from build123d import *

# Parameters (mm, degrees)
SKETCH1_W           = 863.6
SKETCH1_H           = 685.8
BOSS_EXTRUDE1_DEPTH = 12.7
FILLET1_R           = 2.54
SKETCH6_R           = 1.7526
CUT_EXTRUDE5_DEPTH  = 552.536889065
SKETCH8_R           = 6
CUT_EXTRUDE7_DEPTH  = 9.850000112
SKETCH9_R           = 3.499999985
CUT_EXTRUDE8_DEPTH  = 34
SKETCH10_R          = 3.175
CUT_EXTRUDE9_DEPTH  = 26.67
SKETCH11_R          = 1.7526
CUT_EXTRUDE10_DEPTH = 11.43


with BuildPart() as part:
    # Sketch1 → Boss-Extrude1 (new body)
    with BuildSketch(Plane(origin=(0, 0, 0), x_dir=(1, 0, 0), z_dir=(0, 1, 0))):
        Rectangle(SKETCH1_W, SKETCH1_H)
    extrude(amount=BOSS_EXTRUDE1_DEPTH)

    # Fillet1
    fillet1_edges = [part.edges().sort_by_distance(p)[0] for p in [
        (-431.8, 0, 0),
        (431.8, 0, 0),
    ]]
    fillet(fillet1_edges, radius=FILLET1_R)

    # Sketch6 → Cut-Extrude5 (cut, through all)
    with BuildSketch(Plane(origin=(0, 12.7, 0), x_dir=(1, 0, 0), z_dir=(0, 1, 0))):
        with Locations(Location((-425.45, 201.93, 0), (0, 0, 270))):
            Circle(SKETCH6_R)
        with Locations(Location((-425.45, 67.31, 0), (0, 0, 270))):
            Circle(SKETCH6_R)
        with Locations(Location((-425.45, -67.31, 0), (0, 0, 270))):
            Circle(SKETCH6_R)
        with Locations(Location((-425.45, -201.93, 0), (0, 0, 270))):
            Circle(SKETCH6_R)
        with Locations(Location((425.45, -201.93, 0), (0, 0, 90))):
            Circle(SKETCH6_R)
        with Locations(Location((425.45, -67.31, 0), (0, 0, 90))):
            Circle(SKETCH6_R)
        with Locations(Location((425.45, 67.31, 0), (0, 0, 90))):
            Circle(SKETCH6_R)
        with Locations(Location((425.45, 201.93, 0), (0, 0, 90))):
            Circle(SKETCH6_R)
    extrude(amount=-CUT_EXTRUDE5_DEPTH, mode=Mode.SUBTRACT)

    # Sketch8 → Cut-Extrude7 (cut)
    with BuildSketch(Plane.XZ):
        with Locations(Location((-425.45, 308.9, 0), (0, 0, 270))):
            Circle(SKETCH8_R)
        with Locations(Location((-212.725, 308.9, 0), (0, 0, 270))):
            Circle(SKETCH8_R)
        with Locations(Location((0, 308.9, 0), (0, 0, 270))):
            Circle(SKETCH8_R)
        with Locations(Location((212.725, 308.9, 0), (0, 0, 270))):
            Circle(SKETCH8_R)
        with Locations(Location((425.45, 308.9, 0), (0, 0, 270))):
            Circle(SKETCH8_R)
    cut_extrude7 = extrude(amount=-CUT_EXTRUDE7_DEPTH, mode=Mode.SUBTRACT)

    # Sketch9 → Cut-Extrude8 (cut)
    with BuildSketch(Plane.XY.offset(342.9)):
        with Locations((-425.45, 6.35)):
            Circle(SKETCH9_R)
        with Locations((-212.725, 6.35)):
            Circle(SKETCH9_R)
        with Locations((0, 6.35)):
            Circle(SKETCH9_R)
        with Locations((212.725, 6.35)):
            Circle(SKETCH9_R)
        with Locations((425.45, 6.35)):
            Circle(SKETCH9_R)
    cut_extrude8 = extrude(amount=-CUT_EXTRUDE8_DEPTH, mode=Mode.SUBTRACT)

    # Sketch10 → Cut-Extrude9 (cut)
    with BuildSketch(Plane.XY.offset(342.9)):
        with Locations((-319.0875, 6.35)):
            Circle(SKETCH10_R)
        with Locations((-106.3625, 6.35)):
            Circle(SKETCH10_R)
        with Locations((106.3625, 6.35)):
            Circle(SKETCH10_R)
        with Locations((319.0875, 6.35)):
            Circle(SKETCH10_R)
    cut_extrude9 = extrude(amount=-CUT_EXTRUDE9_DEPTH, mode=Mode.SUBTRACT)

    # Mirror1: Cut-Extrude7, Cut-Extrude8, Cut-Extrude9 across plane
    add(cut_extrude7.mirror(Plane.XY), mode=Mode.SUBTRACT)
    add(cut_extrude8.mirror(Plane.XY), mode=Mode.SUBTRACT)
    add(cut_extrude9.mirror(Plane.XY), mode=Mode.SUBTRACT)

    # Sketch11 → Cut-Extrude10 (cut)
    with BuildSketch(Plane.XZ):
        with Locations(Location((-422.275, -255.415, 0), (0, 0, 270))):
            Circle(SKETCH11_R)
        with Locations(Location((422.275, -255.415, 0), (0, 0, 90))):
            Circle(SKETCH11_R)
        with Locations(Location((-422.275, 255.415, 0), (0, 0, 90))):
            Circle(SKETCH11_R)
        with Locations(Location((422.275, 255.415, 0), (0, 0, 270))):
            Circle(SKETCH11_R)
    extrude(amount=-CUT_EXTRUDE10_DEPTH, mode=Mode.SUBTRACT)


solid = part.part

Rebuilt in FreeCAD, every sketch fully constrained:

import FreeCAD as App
import Part
import Sketcher
Q = App.Units.Quantity


def edges_at(feature, points):
    """Names of the edges that pass closest to the given points."""
    edges = feature.Shape.Edges
    near = lambda p: min(range(len(edges)), key=lambda i: edges[i].distToShape(Part.Vertex(*p))[0])
    return sorted({f"Edge{near(p) + 1}" for p in points})

doc = App.newDocument("Part")
body = doc.addObject("PartDesign::Body", "Body")

sketch1 = body.newObject("Sketcher::SketchObject", "Sketch")
sketch1.AttachmentSupport = (doc.getObject("XZ_Plane"), [""])
sketch1.MapMode = "FlatFace"
sketch1.addGeometry(Part.LineSegment(App.Vector(-431.8, -342.9, 0), App.Vector(-431.8, 342.9, 0)), False)
sketch1.addGeometry(Part.LineSegment(App.Vector(-431.8, 342.9, 0), App.Vector(431.8, 342.9, 0)), False)
sketch1.addGeometry(Part.LineSegment(App.Vector(431.8, 342.9, 0), App.Vector(431.8, -342.9, 0)), False)
sketch1.addGeometry(Part.LineSegment(App.Vector(431.8, -342.9, 0), App.Vector(-431.8, -342.9, 0)), False)
sketch1.addConstraint(Sketcher.Constraint("Coincident", 0, 2, 1, 1))
sketch1.addConstraint(Sketcher.Constraint("Coincident", 1, 2, 2, 1))
sketch1.addConstraint(Sketcher.Constraint("Coincident", 2, 2, 3, 1))
sketch1.addConstraint(Sketcher.Constraint("Coincident", 3, 2, 0, 1))
sketch1.addConstraint(Sketcher.Constraint("Vertical", 0))
sketch1.addConstraint(Sketcher.Constraint("Horizontal", 1))
sketch1.addConstraint(Sketcher.Constraint("Vertical", 2))
sketch1.addConstraint(Sketcher.Constraint("Horizontal", 3))
sketch1.addConstraint(Sketcher.Constraint("Symmetric", 0, 2, 2, 2, -1, 1))
sketch1.addConstraint(Sketcher.Constraint("DistanceX", 1, 1, 1, 2, Q("34 in")))
sketch1.addConstraint(Sketcher.Constraint("DistanceY", 0, 1, 0, 2, Q("27 in")))
pad1 = body.newObject("PartDesign::Pad", "Pad")
pad1.Profile = sketch1
pad1.Length = Q("0.5 in")
pad1.Reversed = True
doc.recompute()

fillet = body.newObject("PartDesign::Fillet", "Fillet")
fillet.Base = (pad1, edges_at(pad1, [(-431.8, 0, 0), (431.8, 0, 0)]))
fillet.Radius = Q("0.1 in")

sketch2 = body.newObject("Sketcher::SketchObject", "Sketch001")
sketch2.AttachmentSupport = (doc.getObject("XZ_Plane"), [""])
sketch2.MapMode = "FlatFace"
sketch2.AttachmentOffset = App.Placement(App.Vector(0, 0, -0.5 * 25.4), App.Rotation())
sketch2.addGeometry(Part.Circle(App.Vector(-425.45, -201.93, 0), App.Vector(0, 0, 1), 1.7526), False)
sketch2.addGeometry(Part.Circle(App.Vector(-425.45, -67.31, 0), App.Vector(0, 0, 1), 1.7526), False)
sketch2.addGeometry(Part.Circle(App.Vector(-425.45, 67.31, 0), App.Vector(0, 0, 1), 1.7526), False)
sketch2.addGeometry(Part.Circle(App.Vector(-425.45, 201.93, 0), App.Vector(0, 0, 1), 1.7526), False)
sketch2.addGeometry(Part.Circle(App.Vector(425.45, 201.93, 0), App.Vector(0, 0, 1), 1.7526), False)
sketch2.addGeometry(Part.Circle(App.Vector(425.45, 67.31, 0), App.Vector(0, 0, 1), 1.7526), False)
sketch2.addGeometry(Part.Circle(App.Vector(425.45, -67.31, 0), App.Vector(0, 0, 1), 1.7526), False)
sketch2.addGeometry(Part.Circle(App.Vector(425.45, -201.93, 0), App.Vector(0, 0, 1), 1.7526), False)
sketch2.addConstraint(Sketcher.Constraint("Equal", 0, 1))
sketch2.addConstraint(Sketcher.Constraint("Equal", 1, 2))
sketch2.addConstraint(Sketcher.Constraint("Equal", 2, 3))
sketch2.addConstraint(Sketcher.Constraint("Equal", 3, 4))
sketch2.addConstraint(Sketcher.Constraint("Equal", 4, 5))
sketch2.addConstraint(Sketcher.Constraint("Equal", 5, 6))
sketch2.addConstraint(Sketcher.Constraint("Equal", 6, 7))
sketch2.addConstraint(Sketcher.Constraint("Symmetric", 0, 3, 4, 3, -1, 1))
sketch2.addConstraint(Sketcher.Constraint("Symmetric", 1, 3, 5, 3, -1, 1))
sketch2.addConstraint(Sketcher.Constraint("Symmetric", 2, 3, 6, 3, -1, 1))
sketch2.addConstraint(Sketcher.Constraint("Symmetric", 3, 3, 7, 3, -1, 1))
sketch2.addConstraint(Sketcher.Constraint("Symmetric", 3, 3, 4, 3, -2))
sketch2.addConstraint(Sketcher.Constraint("Symmetric", 2, 3, 5, 3, -2))
sketch2.addConstraint(Sketcher.Constraint("Vertical", 0, 3, 1, 3))
sketch2.addConstraint(Sketcher.Constraint("Diameter", 0, Q("0.138 in")))
sketch2.addConstraint(Sketcher.Constraint("DistanceY", 0, 3, 1, 3, Q("5.3 in")))
sketch2.addConstraint(Sketcher.Constraint("DistanceY", 1, 3, 2, 3, Q("5.3 in")))
sketch2.addConstraint(Sketcher.Constraint("DistanceX", 3, 3, 4, 3, Q("33.5 in")))
pocket1 = body.newObject("PartDesign::Pocket", "Pocket")
pocket1.Profile = sketch2
pocket1.Type = "ThroughAll"
pocket1.Reversed = True

sketch3 = body.newObject("Sketcher::SketchObject", "Sketch002")
sketch3.AttachmentSupport = (doc.getObject("XZ_Plane"), [""])
sketch3.MapMode = "FlatFace"
sketch3.addGeometry(Part.Circle(App.Vector(-425.45, 308.9, 0), App.Vector(0, 0, 1), 6), False)
sketch3.addGeometry(Part.Circle(App.Vector(-212.725, 308.9, 0), App.Vector(0, 0, 1), 6), False)
sketch3.addGeometry(Part.Circle(App.Vector(0, 308.9, 0), App.Vector(0, 0, 1), 6), False)
sketch3.addGeometry(Part.Circle(App.Vector(212.725, 308.9, 0), App.Vector(0, 0, 1), 6), False)
sketch3.addGeometry(Part.Circle(App.Vector(425.45, 308.9, 0), App.Vector(0, 0, 1), 6), False)
sketch3.addConstraint(Sketcher.Constraint("Equal", 0, 1))
sketch3.addConstraint(Sketcher.Constraint("Equal", 1, 2))
sketch3.addConstraint(Sketcher.Constraint("Equal", 2, 3))
sketch3.addConstraint(Sketcher.Constraint("Equal", 3, 4))
sketch3.addConstraint(Sketcher.Constraint("Symmetric", 1, 3, 3, 3, -2))
sketch3.addConstraint(Sketcher.Constraint("Symmetric", 0, 3, 4, 3, -2))
sketch3.addConstraint(Sketcher.Constraint("PointOnObject", 2, 3, -2))
sketch3.addConstraint(Sketcher.Constraint("Horizontal", 0, 3, 1, 3))
sketch3.addConstraint(Sketcher.Constraint("Horizontal", 1, 3, 2, 3))
sketch3.addConstraint(Sketcher.Constraint("DistanceX", 0, 3, 4, 3, Q("33.5 in")))
sketch3.addConstraint(Sketcher.Constraint("Diameter", 0, 12.0))
sketch3.addConstraint(Sketcher.Constraint("DistanceX", 1, 3, 3, 3, Q("16.75 in")))
sketch3.addConstraint(Sketcher.Constraint("DistanceY", -1, 1, 0, 3, 308.9))
pocket2 = body.newObject("PartDesign::Pocket", "Pocket001")
pocket2.Profile = sketch3
pocket2.Length = 9.85

sketch4 = body.newObject("Sketcher::SketchObject", "Sketch003")
sketch4.AttachmentSupport = (doc.getObject("XY_Plane"), [""])
sketch4.MapMode = "FlatFace"
sketch4.AttachmentOffset = App.Placement(App.Vector(0, 0, 13.5 * 25.4), App.Rotation())
sketch4.addGeometry(Part.Circle(App.Vector(-425.45, 6.35, 0), App.Vector(0, 0, 1), 3.5), False)
sketch4.addGeometry(Part.Circle(App.Vector(-212.725, 6.35, 0), App.Vector(0, 0, 1), 3.5), False)
sketch4.addGeometry(Part.Circle(App.Vector(0, 6.35, 0), App.Vector(0, 0, 1), 3.5), False)
sketch4.addGeometry(Part.Circle(App.Vector(212.725, 6.35, 0), App.Vector(0, 0, 1), 3.5), False)
sketch4.addGeometry(Part.Circle(App.Vector(425.45, 6.35, 0), App.Vector(0, 0, 1), 3.5), False)
sketch4.addConstraint(Sketcher.Constraint("Equal", 0, 1))
sketch4.addConstraint(Sketcher.Constraint("Equal", 1, 2))
sketch4.addConstraint(Sketcher.Constraint("Equal", 2, 3))
sketch4.addConstraint(Sketcher.Constraint("Equal", 3, 4))
sketch4.addConstraint(Sketcher.Constraint("Symmetric", 1, 3, 3, 3, -2))
sketch4.addConstraint(Sketcher.Constraint("Symmetric", 0, 3, 4, 3, -2))
sketch4.addConstraint(Sketcher.Constraint("PointOnObject", 2, 3, -2))
sketch4.addConstraint(Sketcher.Constraint("Horizontal", 0, 3, 1, 3))
sketch4.addConstraint(Sketcher.Constraint("Horizontal", 1, 3, 2, 3))
sketch4.addConstraint(Sketcher.Constraint("DistanceX", 0, 3, 4, 3, Q("33.5 in")))
sketch4.addConstraint(Sketcher.Constraint("Diameter", 0, 7.0))
sketch4.addConstraint(Sketcher.Constraint("DistanceY", -1, 1, 0, 3, Q("0.25 in")))
sketch4.addConstraint(Sketcher.Constraint("DistanceX", 1, 3, 3, 3, Q("16.75 in")))
pocket3 = body.newObject("PartDesign::Pocket", "Pocket002")
pocket3.Profile = sketch4
pocket3.Length = 34

sketch5 = body.newObject("Sketcher::SketchObject", "Sketch004")
sketch5.AttachmentSupport = (doc.getObject("XY_Plane"), [""])
sketch5.MapMode = "FlatFace"
sketch5.AttachmentOffset = App.Placement(App.Vector(0, 0, 13.5 * 25.4), App.Rotation())
sketch5.addGeometry(Part.Circle(App.Vector(-319.0875, 6.35, 0), App.Vector(0, 0, 1), 3.175), False)
sketch5.addGeometry(Part.Circle(App.Vector(-106.3625, 6.35, 0), App.Vector(0, 0, 1), 3.175), False)
sketch5.addGeometry(Part.Circle(App.Vector(106.3625, 6.35, 0), App.Vector(0, 0, 1), 3.175), False)
sketch5.addGeometry(Part.Circle(App.Vector(319.0875, 6.35, 0), App.Vector(0, 0, 1), 3.175), False)
sketch5.addConstraint(Sketcher.Constraint("Equal", 0, 1))
sketch5.addConstraint(Sketcher.Constraint("Equal", 1, 2))
sketch5.addConstraint(Sketcher.Constraint("Equal", 2, 3))
sketch5.addConstraint(Sketcher.Constraint("Symmetric", 1, 3, 2, 3, -2))
sketch5.addConstraint(Sketcher.Constraint("Symmetric", 0, 3, 3, 3, -2))
sketch5.addConstraint(Sketcher.Constraint("Horizontal", 0, 3, 1, 3))
sketch5.addConstraint(Sketcher.Constraint("Diameter", 0, Q("0.25 in")))
sketch5.addConstraint(Sketcher.Constraint("DistanceY", -1, 1, 0, 3, Q("0.25 in")))
sketch5.addConstraint(Sketcher.Constraint("DistanceX", 0, 3, 2, 3, Q("16.75 in")))
sketch5.addConstraint(Sketcher.Constraint("DistanceX", 0, 3, -1, 1, Q("12.5625 in")))
pocket4 = body.newObject("PartDesign::Pocket", "Pocket003")
pocket4.Profile = sketch5
pocket4.Length = Q("1.05 in")
doc.recompute()

mirrored = body.newObject("PartDesign::Mirrored", "Mirrored")
mirrored.Originals = [pocket2, pocket3, pocket4]
mirrored.MirrorPlane = (doc.getObject("XY_Plane"), [""])
body.Tip = mirrored

sketch6 = body.newObject("Sketcher::SketchObject", "Sketch005")
sketch6.AttachmentSupport = (doc.getObject("XZ_Plane"), [""])
sketch6.MapMode = "FlatFace"
sketch6.addGeometry(Part.Circle(App.Vector(-422.275, -255.415, 0), App.Vector(0, 0, 1), 1.7526), False)
sketch6.addGeometry(Part.Circle(App.Vector(422.275, -255.415, 0), App.Vector(0, 0, 1), 1.7526), False)
sketch6.addGeometry(Part.Circle(App.Vector(-422.275, 255.415, 0), App.Vector(0, 0, 1), 1.7526), False)
sketch6.addGeometry(Part.Circle(App.Vector(422.275, 255.415, 0), App.Vector(0, 0, 1), 1.7526), False)
sketch6.addConstraint(Sketcher.Constraint("Equal", 0, 1))
sketch6.addConstraint(Sketcher.Constraint("Equal", 1, 2))
sketch6.addConstraint(Sketcher.Constraint("Equal", 2, 3))
sketch6.addConstraint(Sketcher.Constraint("Symmetric", 1, 3, 2, 3, -1, 1))
sketch6.addConstraint(Sketcher.Constraint("Symmetric", 0, 3, 3, 3, -1, 1))
sketch6.addConstraint(Sketcher.Constraint("Symmetric", 0, 3, 1, 3, -2))
sketch6.addConstraint(Sketcher.Constraint("Diameter", 0, Q("0.138 in")))
sketch6.addConstraint(Sketcher.Constraint("DistanceX", 0, 3, 1, 3, Q("33.25 in")))
sketch6.addConstraint(Sketcher.Constraint("DistanceY", 0, 3, -1, 1, 255.415))
pocket5 = body.newObject("PartDesign::Pocket", "Pocket004")
pocket5.Profile = sketch6
pocket5.Length = Q("0.45 in")

doc.recompute()
